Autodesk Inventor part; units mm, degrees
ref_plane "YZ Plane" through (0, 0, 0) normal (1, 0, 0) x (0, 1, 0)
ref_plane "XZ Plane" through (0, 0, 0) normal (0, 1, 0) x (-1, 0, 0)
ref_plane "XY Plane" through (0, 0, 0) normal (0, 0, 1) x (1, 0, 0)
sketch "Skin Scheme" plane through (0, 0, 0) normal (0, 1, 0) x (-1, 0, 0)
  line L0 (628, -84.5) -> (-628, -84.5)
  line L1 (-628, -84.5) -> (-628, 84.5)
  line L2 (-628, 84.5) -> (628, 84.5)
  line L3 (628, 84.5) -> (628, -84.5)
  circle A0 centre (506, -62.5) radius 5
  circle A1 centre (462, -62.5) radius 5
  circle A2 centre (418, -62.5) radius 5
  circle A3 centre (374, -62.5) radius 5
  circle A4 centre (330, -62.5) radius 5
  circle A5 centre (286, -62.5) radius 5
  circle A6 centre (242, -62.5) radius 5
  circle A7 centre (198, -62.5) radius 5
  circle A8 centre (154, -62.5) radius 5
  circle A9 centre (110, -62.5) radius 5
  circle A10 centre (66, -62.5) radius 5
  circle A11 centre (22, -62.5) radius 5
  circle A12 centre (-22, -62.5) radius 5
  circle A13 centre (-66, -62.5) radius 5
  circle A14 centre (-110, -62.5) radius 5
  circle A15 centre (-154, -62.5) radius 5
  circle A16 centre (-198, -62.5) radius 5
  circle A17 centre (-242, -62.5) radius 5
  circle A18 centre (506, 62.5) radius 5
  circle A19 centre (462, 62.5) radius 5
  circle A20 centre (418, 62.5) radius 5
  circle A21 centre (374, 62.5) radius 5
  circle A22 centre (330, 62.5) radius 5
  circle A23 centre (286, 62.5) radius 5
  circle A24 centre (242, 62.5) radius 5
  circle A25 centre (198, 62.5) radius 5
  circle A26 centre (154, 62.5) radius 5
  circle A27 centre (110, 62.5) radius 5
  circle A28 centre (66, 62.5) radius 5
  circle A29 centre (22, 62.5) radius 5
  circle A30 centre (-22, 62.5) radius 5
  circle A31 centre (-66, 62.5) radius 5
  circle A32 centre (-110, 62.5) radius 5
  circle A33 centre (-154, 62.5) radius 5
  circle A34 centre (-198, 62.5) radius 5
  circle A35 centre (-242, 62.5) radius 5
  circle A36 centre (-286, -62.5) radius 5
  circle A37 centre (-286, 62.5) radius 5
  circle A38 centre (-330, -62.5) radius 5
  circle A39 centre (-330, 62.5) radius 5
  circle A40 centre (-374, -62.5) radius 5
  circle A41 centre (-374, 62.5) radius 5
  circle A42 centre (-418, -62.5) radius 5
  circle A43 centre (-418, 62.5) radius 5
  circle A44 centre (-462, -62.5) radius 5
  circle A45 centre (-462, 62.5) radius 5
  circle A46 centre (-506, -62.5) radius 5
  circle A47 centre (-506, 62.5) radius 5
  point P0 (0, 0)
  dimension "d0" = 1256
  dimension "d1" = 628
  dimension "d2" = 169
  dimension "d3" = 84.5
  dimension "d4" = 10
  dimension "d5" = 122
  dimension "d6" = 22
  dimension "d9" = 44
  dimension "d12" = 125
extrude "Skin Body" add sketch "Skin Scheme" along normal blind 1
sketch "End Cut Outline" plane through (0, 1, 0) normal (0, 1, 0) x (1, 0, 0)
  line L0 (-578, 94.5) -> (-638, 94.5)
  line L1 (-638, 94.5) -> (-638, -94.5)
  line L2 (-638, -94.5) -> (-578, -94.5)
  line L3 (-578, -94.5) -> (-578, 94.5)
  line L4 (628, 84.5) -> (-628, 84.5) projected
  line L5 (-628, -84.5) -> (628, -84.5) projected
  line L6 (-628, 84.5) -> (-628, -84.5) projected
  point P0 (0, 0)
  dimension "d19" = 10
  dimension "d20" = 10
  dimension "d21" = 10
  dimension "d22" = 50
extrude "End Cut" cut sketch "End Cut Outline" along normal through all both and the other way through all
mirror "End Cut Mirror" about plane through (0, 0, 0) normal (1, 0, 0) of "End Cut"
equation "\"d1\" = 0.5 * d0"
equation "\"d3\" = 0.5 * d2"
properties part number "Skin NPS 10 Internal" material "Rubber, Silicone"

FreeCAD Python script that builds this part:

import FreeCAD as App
import Part
import Sketcher
from FreeCAD import Vector
Q = App.Units.Quantity


def add_polygon(sketch, points):
    """Adds a closed chain of lines whose ends are joined by coincident constraints."""
    first, n = sketch.GeometryCount, len(points)
    for a, b in zip(points, points[1:] + points[:1]):
        sketch.addGeometry(Part.LineSegment(App.Vector(*a, 0), App.Vector(*b, 0)), False)
    for i in range(n):
        sketch.addConstraint(Sketcher.Constraint("Coincident", first + i, 2, first + (i + 1) % n, 1))

doc = App.newDocument("Part")
body = doc.addObject("PartDesign::Body", "Body")

sketch1 = doc.addObject("Sketcher::SketchObject", "Sketch")
body.addObject(sketch1)
sketch1.AttachmentSupport = (doc.XZ_Plane, [""])
sketch1.MapMode = "FlatFace"
add_polygon(sketch1, [(628, -84), (-628, -84), (-628, 84), (628, 84)])
sketch1.addGeometry(Part.Circle(Vector(506, -62, 0), Vector(0, 0, 1), 5), False)
sketch1.addGeometry(Part.Circle(Vector(462, -62, 0), Vector(0, 0, 1), 5), False)
sketch1.addGeometry(Part.Circle(Vector(418, -62, 0), Vector(0, 0, 1), 5), False)
sketch1.addGeometry(Part.Circle(Vector(374, -62, 0), Vector(0, 0, 1), 5), False)
sketch1.addGeometry(Part.Circle(Vector(330, -62, 0), Vector(0, 0, 1), 5), False)
sketch1.addGeometry(Part.Circle(Vector(286, -62, 0), Vector(0, 0, 1), 5), False)
sketch1.addGeometry(Part.Circle(Vector(242, -62, 0), Vector(0, 0, 1), 5), False)
sketch1.addGeometry(Part.Circle(Vector(198, -62, 0), Vector(0, 0, 1), 5), False)
sketch1.addGeometry(Part.Circle(Vector(154, -62, 0), Vector(0, 0, 1), 5), False)
sketch1.addGeometry(Part.Circle(Vector(110, -62, 0), Vector(0, 0, 1), 5), False)
sketch1.addGeometry(Part.Circle(Vector(66, -62, 0), Vector(0, 0, 1), 5), False)
sketch1.addGeometry(Part.Circle(Vector(22, -62, 0), Vector(0, 0, 1), 5), False)
sketch1.addGeometry(Part.Circle(Vector(-22, -62, 0), Vector(0, 0, 1), 5), False)
sketch1.addGeometry(Part.Circle(Vector(-66, -62, 0), Vector(0, 0, 1), 5), False)
sketch1.addGeometry(Part.Circle(Vector(-110, -62, 0), Vector(0, 0, 1), 5), False)
sketch1.addGeometry(Part.Circle(Vector(-154, -62, 0), Vector(0, 0, 1), 5), False)
sketch1.addGeometry(Part.Circle(Vector(-198, -62, 0), Vector(0, 0, 1), 5), False)
sketch1.addGeometry(Part.Circle(Vector(-242, -62, 0), Vector(0, 0, 1), 5), False)
sketch1.addGeometry(Part.Circle(Vector(-286, -62, 0), Vector(0, 0, 1), 5), False)
sketch1.addGeometry(Part.Circle(Vector(-330, -62, 0), Vector(0, 0, 1), 5), False)
sketch1.addGeometry(Part.Circle(Vector(-374, -62, 0), Vector(0, 0, 1), 5), False)
sketch1.addGeometry(Part.Circle(Vector(-418, -62, 0), Vector(0, 0, 1), 5), False)
sketch1.addGeometry(Part.Circle(Vector(-462, -62, 0), Vector(0, 0, 1), 5), False)
sketch1.addGeometry(Part.Circle(Vector(-506, -62, 0), Vector(0, 0, 1), 5), False)
sketch1.addGeometry(Part.Circle(Vector(506, 62, 0), Vector(0, 0, 1), 5), False)
sketch1.addGeometry(Part.Circle(Vector(462, 62, 0), Vector(0, 0, 1), 5), False)
sketch1.addGeometry(Part.Circle(Vector(418, 62, 0), Vector(0, 0, 1), 5), False)
sketch1.addGeometry(Part.Circle(Vector(374, 62, 0), Vector(0, 0, 1), 5), False)
sketch1.addGeometry(Part.Circle(Vector(330, 62, 0), Vector(0, 0, 1), 5), False)
sketch1.addGeometry(Part.Circle(Vector(286, 62, 0), Vector(0, 0, 1), 5), False)
sketch1.addGeometry(Part.Circle(Vector(242, 62, 0), Vector(0, 0, 1), 5), False)
sketch1.addGeometry(Part.Circle(Vector(198, 62, 0), Vector(0, 0, 1), 5), False)
sketch1.addGeometry(Part.Circle(Vector(154, 62, 0), Vector(0, 0, 1), 5), False)
sketch1.addGeometry(Part.Circle(Vector(110, 62, 0), Vector(0, 0, 1), 5), False)
sketch1.addGeometry(Part.Circle(Vector(66, 62, 0), Vector(0, 0, 1), 5), False)
sketch1.addGeometry(Part.Circle(Vector(22, 62, 0), Vector(0, 0, 1), 5), False)
sketch1.addGeometry(Part.Circle(Vector(-22, 62, 0), Vector(0, 0, 1), 5), False)
sketch1.addGeometry(Part.Circle(Vector(-66, 62, 0), Vector(0, 0, 1), 5), False)
sketch1.addGeometry(Part.Circle(Vector(-110, 62, 0), Vector(0, 0, 1), 5), False)
sketch1.addGeometry(Part.Circle(Vector(-154, 62, 0), Vector(0, 0, 1), 5), False)
sketch1.addGeometry(Part.Circle(Vector(-198, 62, 0), Vector(0, 0, 1), 5), False)
sketch1.addGeometry(Part.Circle(Vector(-242, 62, 0), Vector(0, 0, 1), 5), False)
sketch1.addGeometry(Part.Circle(Vector(-286, 62, 0), Vector(0, 0, 1), 5), False)
sketch1.addGeometry(Part.Circle(Vector(-330, 62, 0), Vector(0, 0, 1), 5), False)
sketch1.addGeometry(Part.Circle(Vector(-374, 62, 0), Vector(0, 0, 1), 5), False)
sketch1.addGeometry(Part.Circle(Vector(-418, 62, 0), Vector(0, 0, 1), 5), False)
sketch1.addGeometry(Part.Circle(Vector(-462, 62, 0), Vector(0, 0, 1), 5), False)
sketch1.addGeometry(Part.Circle(Vector(-506, 62, 0), Vector(0, 0, 1), 5), False)
sketch1.addConstraint(Sketcher.Constraint("Horizontal", 0))
sketch1.addConstraint(Sketcher.Constraint("Vertical", 1))
sketch1.addConstraint(Sketcher.Constraint("Horizontal", 2))
sketch1.addConstraint(Sketcher.Constraint("Vertical", 3))
sketch1.addConstraint(Sketcher.Constraint("Equal", 4, 5))
sketch1.addConstraint(Sketcher.Constraint("Equal", 5, 6))
sketch1.addConstraint(Sketcher.Constraint("Equal", 6, 7))
sketch1.addConstraint(Sketcher.Constraint("Equal", 7, 8))
sketch1.addConstraint(Sketcher.Constraint("Equal", 8, 9))
sketch1.addConstraint(Sketcher.Constraint("Equal", 9, 10))
sketch1.addConstraint(Sketcher.Constraint("Equal", 10, 11))
sketch1.addConstraint(Sketcher.Constraint("Equal", 11, 12))
sketch1.addConstraint(Sketcher.Constraint("Equal", 12, 13))
sketch1.addConstraint(Sketcher.Constraint("Equal", 13, 14))
sketch1.addConstraint(Sketcher.Constraint("Equal", 14, 15))
sketch1.addConstraint(Sketcher.Constraint("Equal", 15, 16))
sketch1.addConstraint(Sketcher.Constraint("Equal", 16, 17))
sketch1.addConstraint(Sketcher.Constraint("Equal", 17, 18))
sketch1.addConstraint(Sketcher.Constraint("Equal", 18, 19))
sketch1.addConstraint(Sketcher.Constraint("Equal", 19, 20))
sketch1.addConstraint(Sketcher.Constraint("Equal", 20, 21))
sketch1.addConstraint(Sketcher.Constraint("Equal", 21, 22))
sketch1.addConstraint(Sketcher.Constraint("Equal", 22, 23))
sketch1.addConstraint(Sketcher.Constraint("Equal", 23, 24))
sketch1.addConstraint(Sketcher.Constraint("Equal", 24, 25))
sketch1.addConstraint(Sketcher.Constraint("Equal", 25, 26))
sketch1.addConstraint(Sketcher.Constraint("Equal", 26, 27))
sketch1.addConstraint(Sketcher.Constraint("Equal", 27, 28))
sketch1.addConstraint(Sketcher.Constraint("Equal", 28, 29))
sketch1.addConstraint(Sketcher.Constraint("Equal", 29, 30))
sketch1.addConstraint(Sketcher.Constraint("Equal", 30, 31))
sketch1.addConstraint(Sketcher.Constraint("Equal", 31, 32))
sketch1.addConstraint(Sketcher.Constraint("Equal", 32, 33))
sketch1.addConstraint(Sketcher.Constraint("Equal", 33, 34))
sketch1.addConstraint(Sketcher.Constraint("Equal", 34, 35))
sketch1.addConstraint(Sketcher.Constraint("Equal", 35, 36))
sketch1.addConstraint(Sketcher.Constraint("Equal", 36, 37))
sketch1.addConstraint(Sketcher.Constraint("Equal", 37, 38))
sketch1.addConstraint(Sketcher.Constraint("Equal", 38, 39))
sketch1.addConstraint(Sketcher.Constraint("Equal", 39, 40))
sketch1.addConstraint(Sketcher.Constraint("Equal", 40, 41))
sketch1.addConstraint(Sketcher.Constraint("Equal", 41, 42))
sketch1.addConstraint(Sketcher.Constraint("Equal", 42, 43))
sketch1.addConstraint(Sketcher.Constraint("Equal", 43, 44))
sketch1.addConstraint(Sketcher.Constraint("Equal", 44, 45))
sketch1.addConstraint(Sketcher.Constraint("Equal", 45, 46))
sketch1.addConstraint(Sketcher.Constraint("Equal", 46, 47))
sketch1.addConstraint(Sketcher.Constraint("Equal", 47, 48))
sketch1.addConstraint(Sketcher.Constraint("Equal", 48, 49))
sketch1.addConstraint(Sketcher.Constraint("Equal", 49, 50))
sketch1.addConstraint(Sketcher.Constraint("Equal", 50, 51))
sketch1.addConstraint(Sketcher.Constraint("Symmetric", 27, 3, 28, 3, -1, 1))
sketch1.addConstraint(Sketcher.Constraint("Symmetric", 26, 3, 29, 3, -1, 1))
sketch1.addConstraint(Sketcher.Constraint("Symmetric", 25, 3, 30, 3, -1, 1))
sketch1.addConstraint(Sketcher.Constraint("Symmetric", 24, 3, 31, 3, -1, 1))
sketch1.addConstraint(Sketcher.Constraint("Symmetric", 23, 3, 32, 3, -1, 1))
sketch1.addConstraint(Sketcher.Constraint("Symmetric", 22, 3, 33, 3, -1, 1))
sketch1.addConstraint(Sketcher.Constraint("Symmetric", 21, 3, 34, 3, -1, 1))
sketch1.addConstraint(Sketcher.Constraint("Symmetric", 20, 3, 35, 3, -1, 1))
sketch1.addConstraint(Sketcher.Constraint("Symmetric", 19, 3, 36, 3, -1, 1))
sketch1.addConstraint(Sketcher.Constraint("Symmetric", 18, 3, 37, 3, -1, 1))
sketch1.addConstraint(Sketcher.Constraint("Symmetric", 17, 3, 38, 3, -1, 1))
sketch1.addConstraint(Sketcher.Constraint("Symmetric", 16, 3, 39, 3, -1, 1))
sketch1.addConstraint(Sketcher.Constraint("Symmetric", 15, 3, 40, 3, -1, 1))
sketch1.addConstraint(Sketcher.Constraint("Symmetric", 14, 3, 41, 3, -1, 1))
sketch1.addConstraint(Sketcher.Constraint("Symmetric", 13, 3, 42, 3, -1, 1))
sketch1.addConstraint(Sketcher.Constraint("Symmetric", 12, 3, 43, 3, -1, 1))
sketch1.addConstraint(Sketcher.Constraint("Symmetric", 11, 3, 44, 3, -1, 1))
sketch1.addConstraint(Sketcher.Constraint("Symmetric", 10, 3, 45, 3, -1, 1))
sketch1.addConstraint(Sketcher.Constraint("Symmetric", 9, 3, 46, 3, -1, 1))
sketch1.addConstraint(Sketcher.Constraint("Symmetric", 8, 3, 47, 3, -1, 1))
sketch1.addConstraint(Sketcher.Constraint("Symmetric", 7, 3, 48, 3, -1, 1))
sketch1.addConstraint(Sketcher.Constraint("Symmetric", 6, 3, 49, 3, -1, 1))
sketch1.addConstraint(Sketcher.Constraint("Symmetric", 5, 3, 50, 3, -1, 1))
sketch1.addConstraint(Sketcher.Constraint("Symmetric", 4, 3, 51, 3, -1, 1))
sketch1.addConstraint(Sketcher.Constraint("Symmetric", 0, 2, 2, 2, -1, 1))
sketch1.addConstraint(Sketcher.Constraint("Symmetric", 15, 3, 16, 3, -2))
sketch1.addConstraint(Sketcher.Constraint("Symmetric", 14, 3, 17, 3, -2))
sketch1.addConstraint(Sketcher.Constraint("Symmetric", 13, 3, 18, 3, -2))
sketch1.addConstraint(Sketcher.Constraint("Symmetric", 12, 3, 19, 3, -2))
sketch1.addConstraint(Sketcher.Constraint("Symmetric", 11, 3, 20, 3, -2))
sketch1.addConstraint(Sketcher.Constraint("Symmetric", 10, 3, 21, 3, -2))
sketch1.addConstraint(Sketcher.Constraint("Symmetric", 9, 3, 22, 3, -2))
sketch1.addConstraint(Sketcher.Constraint("Symmetric", 8, 3, 23, 3, -2))
sketch1.addConstraint(Sketcher.Constraint("Symmetric", 7, 3, 24, 3, -2))
sketch1.addConstraint(Sketcher.Constraint("Symmetric", 6, 3, 25, 3, -2))
sketch1.addConstraint(Sketcher.Constraint("Symmetric", 5, 3, 26, 3, -2))
sketch1.addConstraint(Sketcher.Constraint("Symmetric", 4, 3, 27, 3, -2))
sketch1.addConstraint(Sketcher.Constraint("Horizontal", 4, 3, 5, 3))
sketch1.addConstraint(Sketcher.Constraint("Horizontal", 5, 3, 6, 3))
sketch1.addConstraint(Sketcher.Constraint("Horizontal", 6, 3, 7, 3))
sketch1.addConstraint(Sketcher.Constraint("Horizontal", 7, 3, 8, 3))
sketch1.addConstraint(Sketcher.Constraint("Horizontal", 8, 3, 9, 3))
sketch1.addConstraint(Sketcher.Constraint("Horizontal", 9, 3, 10, 3))
sketch1.addConstraint(Sketcher.Constraint("Horizontal", 10, 3, 11, 3))
sketch1.addConstraint(Sketcher.Constraint("Horizontal", 11, 3, 12, 3))
sketch1.addConstraint(Sketcher.Constraint("Horizontal", 12, 3, 13, 3))
sketch1.addConstraint(Sketcher.Constraint("Horizontal", 13, 3, 14, 3))
sketch1.addConstraint(Sketcher.Constraint("Horizontal", 14, 3, 15, 3))
sketch1.addConstraint(Sketcher.Constraint("Diameter", 4, Q("10 mm")))
sketch1.addConstraint(Sketcher.Constraint("DistanceX", 0, 2, 0, 1, Q("1256 mm")))
sketch1.addConstraint(Sketcher.Constraint("DistanceY", 1, 1, 1, 2, Q("169 mm")))
sketch1.addConstraint(Sketcher.Constraint("DistanceX", -1, 1, 15, 3, Q("22 mm")))
sketch1.addConstraint(Sketcher.Constraint("DistanceX", 5, 3, 4, 3, Q("44 mm")))
sketch1.addConstraint(Sketcher.Constraint("DistanceX", 6, 3, 5, 3, Q("44 mm")))
sketch1.addConstraint(Sketcher.Constraint("DistanceX", 7, 3, 6, 3, Q("44 mm")))
sketch1.addConstraint(Sketcher.Constraint("DistanceX", 8, 3, 7, 3, Q("44 mm")))
sketch1.addConstraint(Sketcher.Constraint("DistanceX", 9, 3, 8, 3, Q("44 mm")))
sketch1.addConstraint(Sketcher.Constraint("DistanceX", 10, 3, 9, 3, Q("44 mm")))
sketch1.addConstraint(Sketcher.Constraint("DistanceX", 11, 3, 10, 3, Q("44 mm")))
sketch1.addConstraint(Sketcher.Constraint("DistanceX", 12, 3, 11, 3, Q("44 mm")))
sketch1.addConstraint(Sketcher.Constraint("DistanceX", 13, 3, 12, 3, Q("44 mm")))
sketch1.addConstraint(Sketcher.Constraint("DistanceX", 14, 3, 13, 3, Q("44 mm")))
sketch1.addConstraint(Sketcher.Constraint("DistanceX", 15, 3, 14, 3, Q("44 mm")))
sketch1.addConstraint(Sketcher.Constraint("DistanceY", 4, 3, 28, 3, Q("125 mm")))
pad1 = doc.addObject("PartDesign::Pad", "Pad")
body.addObject(pad1)
pad1.Profile = sketch1
pad1.Length = 1
pad1.Reversed = True

sketch2 = doc.addObject("Sketcher::SketchObject", "Sketch001")
body.addObject(sketch2)
sketch2.AttachmentSupport = (doc.XZ_Plane, [""])
sketch2.MapMode = "FlatFace"
sketch2.AttachmentOffset = App.Placement(Vector(0, 0, -1), App.Rotation())
add_polygon(sketch2, [(-578, -94), (-638, -94), (-638, 94), (-578, 94)])
sketch2.addConstraint(Sketcher.Constraint("Horizontal", 0))
sketch2.addConstraint(Sketcher.Constraint("Vertical", 1))
sketch2.addConstraint(Sketcher.Constraint("Horizontal", 2))
sketch2.addConstraint(Sketcher.Constraint("Vertical", 3))
sketch2.addConstraint(Sketcher.Constraint("DistanceX", 0, 2, 0, 1, Q("60 mm")))
sketch2.addConstraint(Sketcher.Constraint("DistanceY", 1, 1, 1, 2, Q("189 mm")))
sketch2.addConstraint(Sketcher.Constraint("DistanceX", 0, 2, -1, 1, Q("638 mm")))
sketch2.addConstraint(Sketcher.Constraint("DistanceY", 0, 2, -1, 1, Q("94.5 mm")))
pocket1 = doc.addObject("PartDesign::Pocket", "Pocket")
body.addObject(pocket1)
pocket1.Profile = sketch2
pocket1.Type = "ThroughAll"
pocket1.Midplane = True
doc.recompute()

mirrored = doc.addObject("PartDesign::Mirrored", "Mirrored")
body.addObject(mirrored)
mirrored.Originals = [pocket1]
mirrored.MirrorPlane = (doc.YZ_Plane, [""])
body.Tip = mirrored

doc.recompute()
